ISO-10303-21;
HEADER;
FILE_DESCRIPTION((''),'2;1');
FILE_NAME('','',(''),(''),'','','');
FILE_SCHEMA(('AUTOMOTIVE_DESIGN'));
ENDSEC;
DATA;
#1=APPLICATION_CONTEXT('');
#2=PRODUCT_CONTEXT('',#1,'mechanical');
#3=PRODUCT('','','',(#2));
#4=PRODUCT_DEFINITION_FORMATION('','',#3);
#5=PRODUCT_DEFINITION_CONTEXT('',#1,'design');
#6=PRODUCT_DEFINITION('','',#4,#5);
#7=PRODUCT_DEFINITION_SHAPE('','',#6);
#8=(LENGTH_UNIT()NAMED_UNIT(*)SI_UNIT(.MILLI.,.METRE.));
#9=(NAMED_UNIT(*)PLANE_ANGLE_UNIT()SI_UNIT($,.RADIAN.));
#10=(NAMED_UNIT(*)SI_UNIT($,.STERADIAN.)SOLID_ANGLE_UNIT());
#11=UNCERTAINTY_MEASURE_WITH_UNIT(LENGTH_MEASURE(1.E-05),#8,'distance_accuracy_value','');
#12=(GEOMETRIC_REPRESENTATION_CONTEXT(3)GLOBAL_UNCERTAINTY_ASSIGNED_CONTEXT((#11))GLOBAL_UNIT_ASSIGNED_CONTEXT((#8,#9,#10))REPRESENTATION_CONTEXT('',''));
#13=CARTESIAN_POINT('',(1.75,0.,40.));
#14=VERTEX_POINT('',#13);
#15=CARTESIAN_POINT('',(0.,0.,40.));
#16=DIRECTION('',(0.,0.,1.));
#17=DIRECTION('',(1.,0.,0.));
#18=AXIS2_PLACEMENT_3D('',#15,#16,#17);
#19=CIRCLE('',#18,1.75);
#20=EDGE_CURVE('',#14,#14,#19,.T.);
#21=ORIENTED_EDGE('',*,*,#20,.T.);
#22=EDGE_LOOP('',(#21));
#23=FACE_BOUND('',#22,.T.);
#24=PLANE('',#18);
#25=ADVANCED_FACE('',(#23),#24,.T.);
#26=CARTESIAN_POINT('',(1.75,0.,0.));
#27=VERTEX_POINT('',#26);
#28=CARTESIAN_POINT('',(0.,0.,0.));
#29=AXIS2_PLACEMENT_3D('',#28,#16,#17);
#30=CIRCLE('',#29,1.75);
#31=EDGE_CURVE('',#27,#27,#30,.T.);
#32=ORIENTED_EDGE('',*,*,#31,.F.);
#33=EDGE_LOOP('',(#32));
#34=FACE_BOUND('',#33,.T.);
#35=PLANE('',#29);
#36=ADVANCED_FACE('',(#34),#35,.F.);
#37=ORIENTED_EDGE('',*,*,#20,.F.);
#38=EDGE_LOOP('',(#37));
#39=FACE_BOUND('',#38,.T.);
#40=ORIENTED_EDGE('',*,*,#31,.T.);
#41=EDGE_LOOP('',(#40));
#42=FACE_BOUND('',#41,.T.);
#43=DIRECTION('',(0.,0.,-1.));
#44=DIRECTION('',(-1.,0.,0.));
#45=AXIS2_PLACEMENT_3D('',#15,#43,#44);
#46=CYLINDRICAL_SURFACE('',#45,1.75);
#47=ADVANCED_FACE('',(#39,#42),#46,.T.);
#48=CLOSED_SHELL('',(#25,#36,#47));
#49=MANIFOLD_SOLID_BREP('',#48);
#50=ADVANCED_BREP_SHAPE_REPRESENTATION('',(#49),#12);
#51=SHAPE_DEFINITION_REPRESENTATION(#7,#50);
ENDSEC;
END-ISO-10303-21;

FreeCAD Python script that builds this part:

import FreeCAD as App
import Part
import Sketcher

V = App.Vector

doc = App.newDocument("Part")
body = doc.addObject("PartDesign::Body", "Body")

sketch1 = body.newObject("Sketcher::SketchObject", "Sketch")
sketch1.AttachmentSupport = (doc.getObject("XY_Plane"), [""])
sketch1.MapMode = "FlatFace"
sketch1.addGeometry(Part.Circle(V(0, 0, 0), V(0, 0, 1), 1.75), False)
sketch1.addConstraint([
    Sketcher.Constraint("Coincident", 0, 3, -1, 1),
    Sketcher.Constraint("Diameter", 0, 3.5),
])
pad1 = body.newObject("PartDesign::Pad", "Pad")
pad1.Profile = sketch1
pad1.Length = 40

doc.recompute()
